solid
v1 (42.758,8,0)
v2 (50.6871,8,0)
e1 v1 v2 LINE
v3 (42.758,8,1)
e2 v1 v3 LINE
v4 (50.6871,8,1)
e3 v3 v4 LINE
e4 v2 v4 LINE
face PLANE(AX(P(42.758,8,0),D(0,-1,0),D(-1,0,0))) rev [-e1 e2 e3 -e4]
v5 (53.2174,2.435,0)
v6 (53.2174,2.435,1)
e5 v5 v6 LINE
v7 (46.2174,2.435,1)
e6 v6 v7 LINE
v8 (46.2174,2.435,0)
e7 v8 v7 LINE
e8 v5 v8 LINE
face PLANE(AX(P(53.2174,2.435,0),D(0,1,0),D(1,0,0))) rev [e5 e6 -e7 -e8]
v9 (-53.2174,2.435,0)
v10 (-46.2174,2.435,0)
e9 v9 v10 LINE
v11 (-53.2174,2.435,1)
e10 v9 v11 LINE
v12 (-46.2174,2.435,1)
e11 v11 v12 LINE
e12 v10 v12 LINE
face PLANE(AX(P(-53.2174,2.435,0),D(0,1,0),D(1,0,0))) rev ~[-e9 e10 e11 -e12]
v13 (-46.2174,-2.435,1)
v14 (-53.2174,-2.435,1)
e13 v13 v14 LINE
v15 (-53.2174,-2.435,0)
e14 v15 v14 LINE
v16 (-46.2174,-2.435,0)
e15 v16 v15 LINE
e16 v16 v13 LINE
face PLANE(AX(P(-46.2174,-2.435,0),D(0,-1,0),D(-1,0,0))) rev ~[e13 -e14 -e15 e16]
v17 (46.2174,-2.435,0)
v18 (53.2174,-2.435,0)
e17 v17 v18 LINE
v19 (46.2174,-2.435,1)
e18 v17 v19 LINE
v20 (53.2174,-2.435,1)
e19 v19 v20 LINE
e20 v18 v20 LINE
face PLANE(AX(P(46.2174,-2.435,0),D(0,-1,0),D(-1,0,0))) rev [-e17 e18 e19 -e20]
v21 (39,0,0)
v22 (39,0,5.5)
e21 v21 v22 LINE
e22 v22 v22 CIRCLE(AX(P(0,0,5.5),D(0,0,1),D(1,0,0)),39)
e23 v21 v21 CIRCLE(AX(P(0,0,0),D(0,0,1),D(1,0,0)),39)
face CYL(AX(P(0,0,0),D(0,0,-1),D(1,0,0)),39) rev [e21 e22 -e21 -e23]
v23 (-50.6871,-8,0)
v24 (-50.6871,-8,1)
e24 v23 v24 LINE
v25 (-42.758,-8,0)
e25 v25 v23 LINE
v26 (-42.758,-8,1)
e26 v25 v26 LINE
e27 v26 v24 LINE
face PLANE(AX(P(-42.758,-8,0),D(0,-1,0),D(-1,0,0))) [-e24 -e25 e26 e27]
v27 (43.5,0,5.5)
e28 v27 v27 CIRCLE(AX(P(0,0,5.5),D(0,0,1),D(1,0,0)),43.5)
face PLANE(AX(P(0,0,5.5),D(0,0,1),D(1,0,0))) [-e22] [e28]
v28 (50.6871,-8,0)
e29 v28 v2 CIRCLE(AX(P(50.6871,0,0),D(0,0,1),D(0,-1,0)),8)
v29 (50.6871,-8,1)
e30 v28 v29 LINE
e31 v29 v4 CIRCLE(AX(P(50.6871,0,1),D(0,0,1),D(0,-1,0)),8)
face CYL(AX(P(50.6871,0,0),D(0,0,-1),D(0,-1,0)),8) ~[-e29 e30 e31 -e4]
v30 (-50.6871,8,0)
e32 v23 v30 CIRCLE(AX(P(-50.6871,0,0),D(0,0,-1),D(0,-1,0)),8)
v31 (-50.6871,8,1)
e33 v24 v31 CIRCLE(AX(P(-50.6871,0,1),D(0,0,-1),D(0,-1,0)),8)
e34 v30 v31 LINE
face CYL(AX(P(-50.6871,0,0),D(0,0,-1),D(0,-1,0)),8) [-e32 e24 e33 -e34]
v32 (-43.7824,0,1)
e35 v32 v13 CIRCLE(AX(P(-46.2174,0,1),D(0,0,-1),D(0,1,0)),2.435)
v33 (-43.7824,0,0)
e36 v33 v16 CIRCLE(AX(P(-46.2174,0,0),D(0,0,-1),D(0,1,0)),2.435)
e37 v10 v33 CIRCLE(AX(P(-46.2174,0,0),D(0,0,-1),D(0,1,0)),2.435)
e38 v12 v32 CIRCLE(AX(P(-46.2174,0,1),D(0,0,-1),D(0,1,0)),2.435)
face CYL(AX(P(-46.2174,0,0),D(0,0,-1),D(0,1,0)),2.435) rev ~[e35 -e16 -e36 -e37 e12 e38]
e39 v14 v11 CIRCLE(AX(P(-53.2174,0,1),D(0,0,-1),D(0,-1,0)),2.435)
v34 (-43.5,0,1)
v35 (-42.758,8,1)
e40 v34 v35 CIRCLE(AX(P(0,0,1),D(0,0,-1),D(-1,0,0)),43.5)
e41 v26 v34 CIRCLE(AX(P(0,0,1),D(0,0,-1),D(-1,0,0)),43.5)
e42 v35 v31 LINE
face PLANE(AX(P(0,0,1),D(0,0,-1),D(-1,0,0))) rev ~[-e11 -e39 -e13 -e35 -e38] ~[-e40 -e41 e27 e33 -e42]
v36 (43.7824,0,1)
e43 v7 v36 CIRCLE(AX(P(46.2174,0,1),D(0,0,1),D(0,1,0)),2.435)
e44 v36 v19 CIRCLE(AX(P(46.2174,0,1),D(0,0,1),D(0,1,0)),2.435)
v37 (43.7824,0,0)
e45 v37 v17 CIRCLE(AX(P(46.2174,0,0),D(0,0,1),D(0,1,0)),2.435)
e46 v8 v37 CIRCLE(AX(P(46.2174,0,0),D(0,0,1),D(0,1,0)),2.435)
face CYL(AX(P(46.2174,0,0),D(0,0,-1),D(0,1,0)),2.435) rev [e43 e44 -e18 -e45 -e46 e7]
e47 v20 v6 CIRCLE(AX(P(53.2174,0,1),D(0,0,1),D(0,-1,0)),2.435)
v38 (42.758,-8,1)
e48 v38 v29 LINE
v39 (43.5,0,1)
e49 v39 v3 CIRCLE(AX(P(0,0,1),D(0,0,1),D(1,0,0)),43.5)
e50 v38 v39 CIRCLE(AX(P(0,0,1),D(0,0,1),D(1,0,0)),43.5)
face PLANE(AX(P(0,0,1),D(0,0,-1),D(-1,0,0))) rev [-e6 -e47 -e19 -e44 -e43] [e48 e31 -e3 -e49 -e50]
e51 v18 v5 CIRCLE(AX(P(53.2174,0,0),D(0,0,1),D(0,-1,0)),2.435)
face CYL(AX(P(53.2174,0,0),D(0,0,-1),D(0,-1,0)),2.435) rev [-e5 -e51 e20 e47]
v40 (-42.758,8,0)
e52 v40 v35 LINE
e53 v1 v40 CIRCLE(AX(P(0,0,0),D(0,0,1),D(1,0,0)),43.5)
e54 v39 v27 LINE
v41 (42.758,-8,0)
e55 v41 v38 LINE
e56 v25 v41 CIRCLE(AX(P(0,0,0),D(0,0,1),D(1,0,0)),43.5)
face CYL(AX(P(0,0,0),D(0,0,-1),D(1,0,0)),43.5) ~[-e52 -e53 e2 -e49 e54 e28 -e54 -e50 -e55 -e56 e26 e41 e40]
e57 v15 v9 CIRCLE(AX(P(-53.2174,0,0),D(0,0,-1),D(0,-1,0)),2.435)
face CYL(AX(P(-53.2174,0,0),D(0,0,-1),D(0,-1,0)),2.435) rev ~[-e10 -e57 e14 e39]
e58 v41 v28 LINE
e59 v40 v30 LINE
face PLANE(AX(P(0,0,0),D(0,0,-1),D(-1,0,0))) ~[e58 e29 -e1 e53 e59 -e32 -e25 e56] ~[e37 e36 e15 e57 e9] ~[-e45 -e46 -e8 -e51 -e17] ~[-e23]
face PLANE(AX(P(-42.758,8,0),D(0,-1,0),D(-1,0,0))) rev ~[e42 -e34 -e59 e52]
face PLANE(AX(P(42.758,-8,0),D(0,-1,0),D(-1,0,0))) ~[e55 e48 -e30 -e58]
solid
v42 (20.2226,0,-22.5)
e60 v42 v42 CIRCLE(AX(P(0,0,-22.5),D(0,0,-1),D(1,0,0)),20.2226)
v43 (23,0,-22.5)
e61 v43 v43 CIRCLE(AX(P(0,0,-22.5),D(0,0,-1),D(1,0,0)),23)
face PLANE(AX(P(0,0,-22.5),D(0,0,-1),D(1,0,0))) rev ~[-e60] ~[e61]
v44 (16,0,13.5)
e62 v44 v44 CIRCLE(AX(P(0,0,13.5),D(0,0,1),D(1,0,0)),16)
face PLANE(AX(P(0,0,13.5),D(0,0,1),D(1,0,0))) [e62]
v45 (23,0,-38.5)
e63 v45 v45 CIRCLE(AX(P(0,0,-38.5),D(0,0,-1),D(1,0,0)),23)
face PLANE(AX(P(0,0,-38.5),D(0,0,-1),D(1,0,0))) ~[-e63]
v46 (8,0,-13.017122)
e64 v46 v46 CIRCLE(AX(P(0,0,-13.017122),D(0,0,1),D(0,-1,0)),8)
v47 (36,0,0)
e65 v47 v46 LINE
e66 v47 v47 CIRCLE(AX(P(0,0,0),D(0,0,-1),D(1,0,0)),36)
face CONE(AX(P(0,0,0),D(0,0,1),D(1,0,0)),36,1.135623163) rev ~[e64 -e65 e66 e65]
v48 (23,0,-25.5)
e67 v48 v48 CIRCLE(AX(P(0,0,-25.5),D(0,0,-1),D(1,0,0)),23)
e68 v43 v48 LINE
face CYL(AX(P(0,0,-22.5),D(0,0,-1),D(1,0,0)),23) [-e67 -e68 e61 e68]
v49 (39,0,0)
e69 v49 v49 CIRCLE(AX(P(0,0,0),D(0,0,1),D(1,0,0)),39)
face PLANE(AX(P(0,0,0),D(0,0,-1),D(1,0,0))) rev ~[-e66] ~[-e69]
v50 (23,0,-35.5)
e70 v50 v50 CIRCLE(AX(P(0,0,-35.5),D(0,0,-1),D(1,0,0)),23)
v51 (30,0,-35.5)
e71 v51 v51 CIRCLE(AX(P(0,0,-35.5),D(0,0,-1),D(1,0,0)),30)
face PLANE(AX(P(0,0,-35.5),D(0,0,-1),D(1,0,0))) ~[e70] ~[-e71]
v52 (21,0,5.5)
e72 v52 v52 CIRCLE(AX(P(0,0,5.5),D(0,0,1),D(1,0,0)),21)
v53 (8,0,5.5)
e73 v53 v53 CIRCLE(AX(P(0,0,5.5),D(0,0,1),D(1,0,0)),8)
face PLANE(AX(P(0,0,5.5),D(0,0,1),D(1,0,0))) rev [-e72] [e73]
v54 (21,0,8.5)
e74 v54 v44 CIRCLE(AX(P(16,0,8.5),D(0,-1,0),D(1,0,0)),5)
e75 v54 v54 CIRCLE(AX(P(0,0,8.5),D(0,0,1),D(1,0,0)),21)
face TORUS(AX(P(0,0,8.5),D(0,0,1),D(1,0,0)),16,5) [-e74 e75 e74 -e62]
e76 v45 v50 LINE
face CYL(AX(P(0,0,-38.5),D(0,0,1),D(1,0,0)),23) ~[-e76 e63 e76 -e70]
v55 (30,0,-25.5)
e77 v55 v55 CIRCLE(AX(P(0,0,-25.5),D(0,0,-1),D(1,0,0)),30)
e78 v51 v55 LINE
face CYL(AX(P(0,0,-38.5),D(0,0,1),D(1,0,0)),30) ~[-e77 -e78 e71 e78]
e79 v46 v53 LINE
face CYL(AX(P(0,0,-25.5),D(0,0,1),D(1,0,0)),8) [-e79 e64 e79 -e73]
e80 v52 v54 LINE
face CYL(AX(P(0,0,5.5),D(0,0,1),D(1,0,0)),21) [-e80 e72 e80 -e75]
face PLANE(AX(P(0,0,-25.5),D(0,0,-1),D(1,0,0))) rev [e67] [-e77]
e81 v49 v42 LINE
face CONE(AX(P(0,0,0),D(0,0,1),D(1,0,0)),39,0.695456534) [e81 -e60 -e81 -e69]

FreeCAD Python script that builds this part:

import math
import FreeCAD as App
import Part
import Sketcher
Q = App.Units.Quantity


def edges_at(feature, points):
    """Names of the edges that pass closest to the given points."""
    edges = feature.Shape.Edges
    near = lambda p: min(range(len(edges)), key=lambda i: edges[i].distToShape(Part.Vertex(*p))[0])
    return sorted({f"Edge{near(p) + 1}" for p in points})


def add_polygon(sketch, points):
    """Adds a closed chain of lines whose ends are joined by coincident constraints."""
    first, n = sketch.GeometryCount, len(points)
    for a, b in zip(points, points[1:] + points[:1]):
        sketch.addGeometry(Part.LineSegment(App.Vector(*a, 0), App.Vector(*b, 0)), False)
    for i in range(n):
        sketch.addConstraint(Sketcher.Constraint("Coincident", first + i, 2, first + (i + 1) % n, 1))

doc = App.newDocument("Part")
params = doc.addObject("Spreadsheet::Sheet", "Params")
for row, (alias, value) in enumerate([
    ("sketch1_diameter", "87 mm"),
    ("sketch1_diameter2", "78 mm"),
    ("pad1_length", "5.5 mm"),
    ("sketch2_width", "3 mm"),
    ("sketch2_width2", "7 mm"),
    ("revolution_angle", "360 deg"),
    ("sketch3_width", "8 mm"),
    ("sketch3_width2", "21 mm"),
    ("sketch3_height", "31 mm"),
    ("revolution2_angle", "360 deg"),
    ("sketch4_radius", "8 mm"),
    ("sketch4_radius2", "43.5 mm"),
    ("sketch4_width", "7 mm"),
    ("pad2_length", "1 mm"),
    ("fillet_radius", "5 mm"),
], start=1):
    params.set(f"A{row}", alias)
    params.set(f"B{row}", "=" + value)
    params.setAlias(f"B{row}", alias)

body = doc.addObject("PartDesign::Body", "Body")
body.AllowCompound = True

sketch1 = body.newObject("Sketcher::SketchObject", "Sketch")
sketch1.AttachmentSupport = (doc.getObject("XY_Plane"), [""])
sketch1.MapMode = "FlatFace"
sketch1.addGeometry([
    Part.Circle(App.Vector(0, 0, 0), App.Vector(0, 0, 1), 44),
    Part.Circle(App.Vector(0, 0, 0), App.Vector(0, 0, 1), 39),
], False)
sketch1.addConstraint([
    Sketcher.Constraint("Coincident", 0, 3, -1, 1),
    Sketcher.Constraint("Coincident", 1, 3, -1, 1),
    Sketcher.Constraint("Diameter", 0, Q("87 mm")),
    Sketcher.Constraint("Diameter", 1, Q("78 mm")),
])
sketch1.setExpression("Constraints[2]", "Params.sketch1_diameter")
sketch1.setExpression("Constraints[3]", "Params.sketch1_diameter2")
pad1 = body.newObject("PartDesign::Pad", "Pad")
pad1.Profile = sketch1
pad1.setExpression("Length", "Params.pad1_length")

sketch2 = body.newObject("Sketcher::SketchObject", "Sketch001")
sketch2.AttachmentSupport = (doc.getObject("XZ_Plane"), [""])
sketch2.MapMode = "FlatFace"
add_polygon(sketch2, [(36, 0), (39, 0), (20.2, -22.5), (23, -22.5), (23, -25.5), (30, -25.5), (30, -35.5), (23, -35.5), (23, -38.5), (0, -38.5), (0, -16.7)])
sketch2.addConstraint([
    Sketcher.Constraint("Horizontal", 0),
    Sketcher.Constraint("Horizontal", 2),
    Sketcher.Constraint("Vertical", 3),
    Sketcher.Constraint("Horizontal", 4),
    Sketcher.Constraint("Vertical", 5),
    Sketcher.Constraint("Horizontal", 6),
    Sketcher.Constraint("Vertical", 7),
    Sketcher.Constraint("Horizontal", 8),
    Sketcher.Constraint("Vertical", 9),
    Sketcher.Constraint("PointOnObject", 0, 2, -1),
    Sketcher.Constraint("PointOnObject", 8, 2, -2),
    Sketcher.Constraint("Vertical", 3, 2, 6, 2),
    Sketcher.Constraint("Equal", 0, 3),
    Sketcher.Constraint("Equal", 3, 7),
    Sketcher.Constraint("DistanceX", 0, 1, 0, 2, Q("3 mm")),
    Sketcher.Constraint("DistanceX", 4, 1, 4, 2, Q("7 mm")),
    Sketcher.Constraint("DistanceX", -1, 1, 4, 2, Q("30 mm")),
    Sketcher.Constraint("DistanceX", 2, 2, 0, 2, Q("16 mm")),
    Sketcher.Constraint("DistanceY", 7, 2, 2, 2, Q("16 mm")),
    Sketcher.Constraint("DistanceY", 7, 2, -1, 1, Q("38.5 mm")),
    Sketcher.Constraint("Distance", 1, Q("29.306 mm")),
    Sketcher.Constraint("DistanceY", 9, 1, 9, 2, Q("21.7637 mm")),
])
sketch2.setExpression("Constraints[25]", "Params.sketch2_width")
sketch2.setExpression("Constraints[26]", "Params.sketch2_width2")
revolution = body.newObject("PartDesign::Revolution", "Revolution")
revolution.Profile = sketch2
revolution.ReferenceAxis = (sketch2, ["V_Axis"])
revolution.setExpression("Angle", "Params.revolution_angle")

sketch3 = body.newObject("Sketcher::SketchObject", "Sketch002")
sketch3.AttachmentSupport = (doc.getObject("XZ_Plane"), [""])
sketch3.MapMode = "FlatFace"
add_polygon(sketch3, [(8, 6), (8, -26), (0, -26), (0, 14), (21, 14), (21, 6)])
sketch3.addConstraint([
    Sketcher.Constraint("Vertical", 0),
    Sketcher.Constraint("Horizontal", 1),
    Sketcher.Constraint("Vertical", 2),
    Sketcher.Constraint("Horizontal", 3),
    Sketcher.Constraint("Vertical", 4),
    Sketcher.Constraint("Horizontal", 5),
    Sketcher.Constraint("PointOnObject", 1, 2, -2),
    Sketcher.Constraint("Equal", 1, 4),
    Sketcher.Constraint("DistanceX", 1, 2, 1, 1, Q("8 mm")),
    Sketcher.Constraint("DistanceX", 3, 1, 3, 2, Q("21 mm")),
    Sketcher.Constraint("DistanceY", 0, 2, 0, 1, Q("31 mm")),
    Sketcher.Constraint("DistanceY", 0, 2, -1, 1, Q("25.5 mm")),
])
sketch3.setExpression("Constraints[14]", "Params.sketch3_width")
sketch3.setExpression("Constraints[15]", "Params.sketch3_width2")
sketch3.setExpression("Constraints[16]", "Params.sketch3_height")
revolution2 = body.newObject("PartDesign::Revolution", "Revolution001")
revolution2.Profile = sketch3
revolution2.ReferenceAxis = (sketch3, ["V_Axis"])
revolution2.setExpression("Angle", "Params.revolution2_angle")

sketch4 = body.newObject("Sketcher::SketchObject", "Sketch003")
sketch4.AttachmentSupport = (doc.getObject("XY_Plane"), [""])
sketch4.MapMode = "FlatFace"
sketch4.addGeometry([
    Part.ArcOfCircle(Part.Circle(App.Vector(0, 0, 0), App.Vector(0, 0, 1), 43.5), math.radians(169.4), math.radians(180)),
    Part.ArcOfCircle(Part.Circle(App.Vector(0, 0, 0), App.Vector(0, 0, 1), 43.5), math.radians(180), math.radians(190.6)),
    Part.LineSegment(App.Vector(-42.8, -8, 0), App.Vector(-50.7, -8, 0)),
    Part.ArcOfCircle(Part.Circle(App.Vector(-50.7, 0, 0), App.Vector(0, 0, 1), 8), math.radians(90), math.radians(270)),
    Part.LineSegment(App.Vector(-50.7, 8, 0), App.Vector(-42.8, 8, 0)),
    Part.ArcOfCircle(Part.Circle(App.Vector(-46.2, 0, 0), App.Vector(0, 0, 1), 2.4), math.radians(-90), math.radians(0)),
    Part.ArcOfCircle(Part.Circle(App.Vector(-46.2, 0, 0), App.Vector(0, 0, 1), 2.4), math.radians(0), math.radians(90)),
    Part.LineSegment(App.Vector(-46.2, 2.4, 0), App.Vector(-53.2, 2.4, 0)),
    Part.ArcOfCircle(Part.Circle(App.Vector(-53.2, 0, 0), App.Vector(0, 0, 1), 2.4), math.radians(90), math.radians(270)),
    Part.LineSegment(App.Vector(-53.2, -2.4, 0), App.Vector(-46.2, -2.4, 0)),
], False)
sketch4.addConstraint([
    Sketcher.Constraint("Tangent", 0, 2, 1, 1),
    Sketcher.Constraint("Coincident", 1, 2, 2, 1),
    Sketcher.Constraint("Tangent", 2, 2, 3, 2),
    Sketcher.Constraint("Tangent", 3, 1, 4, 1),
    Sketcher.Constraint("Coincident", 4, 2, 0, 1),
    Sketcher.Constraint("Tangent", 5, 2, 6, 1),
    Sketcher.Constraint("Tangent", 6, 2, 7, 1),
    Sketcher.Constraint("Tangent", 7, 2, 8, 1),
    Sketcher.Constraint("Tangent", 8, 2, 9, 1),
    Sketcher.Constraint("Tangent", 9, 2, 5, 1),
    Sketcher.Constraint("Horizontal", 2),
    Sketcher.Constraint("Horizontal", 4),
    Sketcher.Constraint("Horizontal", 7),
    Sketcher.Constraint("Horizontal", 9),
    Sketcher.Constraint("Coincident", 0, 3, -1, 1),
    Sketcher.Constraint("Equal", 0, 1),
    Sketcher.Constraint("Equal", 5, 6),
    Sketcher.Constraint("PointOnObject", 3, 3, -1),
    Sketcher.Constraint("PointOnObject", 5, 3, -1),
    Sketcher.Constraint("PointOnObject", 0, 2, -1),
    Sketcher.Constraint("PointOnObject", 5, 2, -1),
    Sketcher.Constraint("Radius", 3, Q("8 mm")),
    Sketcher.Constraint("Radius", 5, Q("2.435 mm")),
    Sketcher.Constraint("Radius", 0, Q("43.5 mm")),
    Sketcher.Constraint("DistanceX", 7, 2, 7, 1, Q("7 mm")),
    Sketcher.Constraint("DistanceX", 2, 2, 2, 1, Q("7.929 mm")),
    Sketcher.Constraint("DistanceX", 5, 3, -1, 1, Q("46.2174 mm")),
])
sketch4.setExpression("Constraints[21]", "Params.sketch4_radius")
sketch4.setExpression("Constraints[23]", "Params.sketch4_radius2")
sketch4.setExpression("Constraints[24]", "Params.sketch4_width")
pad2 = body.newObject("PartDesign::Pad", "Pad001")
pad2.Profile = sketch4
pad2.setExpression("Length", "Params.pad2_length")
doc.recompute()

mirrored = body.newObject("PartDesign::Mirrored", "Mirrored")
mirrored.Originals = [pad2]
mirrored.MirrorPlane = (doc.getObject("YZ_Plane"), [""])
body.Tip = mirrored
doc.recompute()

fillet = body.newObject("PartDesign::Fillet", "Fillet")
fillet.Base = (mirrored, edges_at(mirrored, [(-21, 0, 13.5)]))
fillet.setExpression("Radius", "Params.fillet_radius")

doc.recompute()
